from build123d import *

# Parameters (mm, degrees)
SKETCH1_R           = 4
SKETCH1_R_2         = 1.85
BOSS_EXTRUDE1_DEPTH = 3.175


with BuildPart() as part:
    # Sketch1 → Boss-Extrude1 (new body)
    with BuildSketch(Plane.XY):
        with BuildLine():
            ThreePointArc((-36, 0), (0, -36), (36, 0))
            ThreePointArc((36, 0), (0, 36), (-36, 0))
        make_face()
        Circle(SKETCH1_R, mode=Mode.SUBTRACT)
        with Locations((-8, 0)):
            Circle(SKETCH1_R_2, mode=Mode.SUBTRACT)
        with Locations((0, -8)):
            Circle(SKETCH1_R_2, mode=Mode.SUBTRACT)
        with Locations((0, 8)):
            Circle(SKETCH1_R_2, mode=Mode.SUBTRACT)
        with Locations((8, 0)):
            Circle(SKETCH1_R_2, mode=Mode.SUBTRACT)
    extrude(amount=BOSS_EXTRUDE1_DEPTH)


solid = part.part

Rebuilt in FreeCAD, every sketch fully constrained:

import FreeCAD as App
import Part
import Sketcher

doc = App.newDocument("Part")
params = doc.addObject("Spreadsheet::Sheet", "Params")
for row, (alias, value) in enumerate([
    ("sketch1_diameter", "72 mm"),
    ("sketch1_diameter2", "8 mm"),
    ("sketch1_diameter3", "3.7 mm"),
    ("pad1_length", "3.175 mm"),
], start=1):
    params.set(f"A{row}", alias)
    params.set(f"B{row}", "=" + value)
    params.setAlias(f"B{row}", alias)

body = doc.addObject("PartDesign::Body", "Body")

sketch1 = doc.addObject("Sketcher::SketchObject", "Sketch")
body.addObject(sketch1)
sketch1.AttachmentSupport = (doc.XY_Plane, [""])
sketch1.MapMode = "FlatFace"
sketch1.addGeometry([
    Part.Circle(App.Vector(0, 0, 0), App.Vector(0, 0, 1), 36),
    Part.Circle(App.Vector(0, -8, 0), App.Vector(0, 0, 1), 1.85),
    Part.Circle(App.Vector(-8, 0, 0), App.Vector(0, 0, 1), 1.85),
    Part.Circle(App.Vector(0, 0, 0), App.Vector(0, 0, 1), 4),
    Part.Circle(App.Vector(8, 0, 0), App.Vector(0, 0, 1), 1.85),
    Part.Circle(App.Vector(0, 8, 0), App.Vector(0, 0, 1), 1.85),
], False)
sketch1.addConstraint([
    Sketcher.Constraint("Coincident", 0, 3, -1, 1),
    Sketcher.Constraint("Coincident", 3, 3, -1, 1),
    Sketcher.Constraint("Equal", 1, 2),
    Sketcher.Constraint("Equal", 2, 4),
    Sketcher.Constraint("Equal", 4, 5),
    Sketcher.Constraint("Symmetric", 2, 3, 4, 3, -1, 1),
    Sketcher.Constraint("Symmetric", 1, 3, 5, 3, -1, 1),
    Sketcher.Constraint("PointOnObject", 1, 3, -2),
    Sketcher.Constraint("PointOnObject", 2, 3, -1),
    Sketcher.Constraint("Diameter", 0, 72.0),
    Sketcher.Constraint("Diameter", 3, 8.0),
    Sketcher.Constraint("Diameter", 1, 3.7),
    Sketcher.Constraint("DistanceY", 1, 3, -1, 1, 8.0),
    Sketcher.Constraint("DistanceX", 2, 3, -1, 1, 8.0),
])
sketch1.setExpression("Constraints[9]", "Params.sketch1_diameter")
sketch1.setExpression("Constraints[10]", "Params.sketch1_diameter2")
sketch1.setExpression("Constraints[11]", "Params.sketch1_diameter3")
pad1 = doc.addObject("PartDesign::Pad", "Pad")
body.addObject(pad1)
pad1.Profile = sketch1
pad1.setExpression("Length", "Params.pad1_length")

doc.recompute()
